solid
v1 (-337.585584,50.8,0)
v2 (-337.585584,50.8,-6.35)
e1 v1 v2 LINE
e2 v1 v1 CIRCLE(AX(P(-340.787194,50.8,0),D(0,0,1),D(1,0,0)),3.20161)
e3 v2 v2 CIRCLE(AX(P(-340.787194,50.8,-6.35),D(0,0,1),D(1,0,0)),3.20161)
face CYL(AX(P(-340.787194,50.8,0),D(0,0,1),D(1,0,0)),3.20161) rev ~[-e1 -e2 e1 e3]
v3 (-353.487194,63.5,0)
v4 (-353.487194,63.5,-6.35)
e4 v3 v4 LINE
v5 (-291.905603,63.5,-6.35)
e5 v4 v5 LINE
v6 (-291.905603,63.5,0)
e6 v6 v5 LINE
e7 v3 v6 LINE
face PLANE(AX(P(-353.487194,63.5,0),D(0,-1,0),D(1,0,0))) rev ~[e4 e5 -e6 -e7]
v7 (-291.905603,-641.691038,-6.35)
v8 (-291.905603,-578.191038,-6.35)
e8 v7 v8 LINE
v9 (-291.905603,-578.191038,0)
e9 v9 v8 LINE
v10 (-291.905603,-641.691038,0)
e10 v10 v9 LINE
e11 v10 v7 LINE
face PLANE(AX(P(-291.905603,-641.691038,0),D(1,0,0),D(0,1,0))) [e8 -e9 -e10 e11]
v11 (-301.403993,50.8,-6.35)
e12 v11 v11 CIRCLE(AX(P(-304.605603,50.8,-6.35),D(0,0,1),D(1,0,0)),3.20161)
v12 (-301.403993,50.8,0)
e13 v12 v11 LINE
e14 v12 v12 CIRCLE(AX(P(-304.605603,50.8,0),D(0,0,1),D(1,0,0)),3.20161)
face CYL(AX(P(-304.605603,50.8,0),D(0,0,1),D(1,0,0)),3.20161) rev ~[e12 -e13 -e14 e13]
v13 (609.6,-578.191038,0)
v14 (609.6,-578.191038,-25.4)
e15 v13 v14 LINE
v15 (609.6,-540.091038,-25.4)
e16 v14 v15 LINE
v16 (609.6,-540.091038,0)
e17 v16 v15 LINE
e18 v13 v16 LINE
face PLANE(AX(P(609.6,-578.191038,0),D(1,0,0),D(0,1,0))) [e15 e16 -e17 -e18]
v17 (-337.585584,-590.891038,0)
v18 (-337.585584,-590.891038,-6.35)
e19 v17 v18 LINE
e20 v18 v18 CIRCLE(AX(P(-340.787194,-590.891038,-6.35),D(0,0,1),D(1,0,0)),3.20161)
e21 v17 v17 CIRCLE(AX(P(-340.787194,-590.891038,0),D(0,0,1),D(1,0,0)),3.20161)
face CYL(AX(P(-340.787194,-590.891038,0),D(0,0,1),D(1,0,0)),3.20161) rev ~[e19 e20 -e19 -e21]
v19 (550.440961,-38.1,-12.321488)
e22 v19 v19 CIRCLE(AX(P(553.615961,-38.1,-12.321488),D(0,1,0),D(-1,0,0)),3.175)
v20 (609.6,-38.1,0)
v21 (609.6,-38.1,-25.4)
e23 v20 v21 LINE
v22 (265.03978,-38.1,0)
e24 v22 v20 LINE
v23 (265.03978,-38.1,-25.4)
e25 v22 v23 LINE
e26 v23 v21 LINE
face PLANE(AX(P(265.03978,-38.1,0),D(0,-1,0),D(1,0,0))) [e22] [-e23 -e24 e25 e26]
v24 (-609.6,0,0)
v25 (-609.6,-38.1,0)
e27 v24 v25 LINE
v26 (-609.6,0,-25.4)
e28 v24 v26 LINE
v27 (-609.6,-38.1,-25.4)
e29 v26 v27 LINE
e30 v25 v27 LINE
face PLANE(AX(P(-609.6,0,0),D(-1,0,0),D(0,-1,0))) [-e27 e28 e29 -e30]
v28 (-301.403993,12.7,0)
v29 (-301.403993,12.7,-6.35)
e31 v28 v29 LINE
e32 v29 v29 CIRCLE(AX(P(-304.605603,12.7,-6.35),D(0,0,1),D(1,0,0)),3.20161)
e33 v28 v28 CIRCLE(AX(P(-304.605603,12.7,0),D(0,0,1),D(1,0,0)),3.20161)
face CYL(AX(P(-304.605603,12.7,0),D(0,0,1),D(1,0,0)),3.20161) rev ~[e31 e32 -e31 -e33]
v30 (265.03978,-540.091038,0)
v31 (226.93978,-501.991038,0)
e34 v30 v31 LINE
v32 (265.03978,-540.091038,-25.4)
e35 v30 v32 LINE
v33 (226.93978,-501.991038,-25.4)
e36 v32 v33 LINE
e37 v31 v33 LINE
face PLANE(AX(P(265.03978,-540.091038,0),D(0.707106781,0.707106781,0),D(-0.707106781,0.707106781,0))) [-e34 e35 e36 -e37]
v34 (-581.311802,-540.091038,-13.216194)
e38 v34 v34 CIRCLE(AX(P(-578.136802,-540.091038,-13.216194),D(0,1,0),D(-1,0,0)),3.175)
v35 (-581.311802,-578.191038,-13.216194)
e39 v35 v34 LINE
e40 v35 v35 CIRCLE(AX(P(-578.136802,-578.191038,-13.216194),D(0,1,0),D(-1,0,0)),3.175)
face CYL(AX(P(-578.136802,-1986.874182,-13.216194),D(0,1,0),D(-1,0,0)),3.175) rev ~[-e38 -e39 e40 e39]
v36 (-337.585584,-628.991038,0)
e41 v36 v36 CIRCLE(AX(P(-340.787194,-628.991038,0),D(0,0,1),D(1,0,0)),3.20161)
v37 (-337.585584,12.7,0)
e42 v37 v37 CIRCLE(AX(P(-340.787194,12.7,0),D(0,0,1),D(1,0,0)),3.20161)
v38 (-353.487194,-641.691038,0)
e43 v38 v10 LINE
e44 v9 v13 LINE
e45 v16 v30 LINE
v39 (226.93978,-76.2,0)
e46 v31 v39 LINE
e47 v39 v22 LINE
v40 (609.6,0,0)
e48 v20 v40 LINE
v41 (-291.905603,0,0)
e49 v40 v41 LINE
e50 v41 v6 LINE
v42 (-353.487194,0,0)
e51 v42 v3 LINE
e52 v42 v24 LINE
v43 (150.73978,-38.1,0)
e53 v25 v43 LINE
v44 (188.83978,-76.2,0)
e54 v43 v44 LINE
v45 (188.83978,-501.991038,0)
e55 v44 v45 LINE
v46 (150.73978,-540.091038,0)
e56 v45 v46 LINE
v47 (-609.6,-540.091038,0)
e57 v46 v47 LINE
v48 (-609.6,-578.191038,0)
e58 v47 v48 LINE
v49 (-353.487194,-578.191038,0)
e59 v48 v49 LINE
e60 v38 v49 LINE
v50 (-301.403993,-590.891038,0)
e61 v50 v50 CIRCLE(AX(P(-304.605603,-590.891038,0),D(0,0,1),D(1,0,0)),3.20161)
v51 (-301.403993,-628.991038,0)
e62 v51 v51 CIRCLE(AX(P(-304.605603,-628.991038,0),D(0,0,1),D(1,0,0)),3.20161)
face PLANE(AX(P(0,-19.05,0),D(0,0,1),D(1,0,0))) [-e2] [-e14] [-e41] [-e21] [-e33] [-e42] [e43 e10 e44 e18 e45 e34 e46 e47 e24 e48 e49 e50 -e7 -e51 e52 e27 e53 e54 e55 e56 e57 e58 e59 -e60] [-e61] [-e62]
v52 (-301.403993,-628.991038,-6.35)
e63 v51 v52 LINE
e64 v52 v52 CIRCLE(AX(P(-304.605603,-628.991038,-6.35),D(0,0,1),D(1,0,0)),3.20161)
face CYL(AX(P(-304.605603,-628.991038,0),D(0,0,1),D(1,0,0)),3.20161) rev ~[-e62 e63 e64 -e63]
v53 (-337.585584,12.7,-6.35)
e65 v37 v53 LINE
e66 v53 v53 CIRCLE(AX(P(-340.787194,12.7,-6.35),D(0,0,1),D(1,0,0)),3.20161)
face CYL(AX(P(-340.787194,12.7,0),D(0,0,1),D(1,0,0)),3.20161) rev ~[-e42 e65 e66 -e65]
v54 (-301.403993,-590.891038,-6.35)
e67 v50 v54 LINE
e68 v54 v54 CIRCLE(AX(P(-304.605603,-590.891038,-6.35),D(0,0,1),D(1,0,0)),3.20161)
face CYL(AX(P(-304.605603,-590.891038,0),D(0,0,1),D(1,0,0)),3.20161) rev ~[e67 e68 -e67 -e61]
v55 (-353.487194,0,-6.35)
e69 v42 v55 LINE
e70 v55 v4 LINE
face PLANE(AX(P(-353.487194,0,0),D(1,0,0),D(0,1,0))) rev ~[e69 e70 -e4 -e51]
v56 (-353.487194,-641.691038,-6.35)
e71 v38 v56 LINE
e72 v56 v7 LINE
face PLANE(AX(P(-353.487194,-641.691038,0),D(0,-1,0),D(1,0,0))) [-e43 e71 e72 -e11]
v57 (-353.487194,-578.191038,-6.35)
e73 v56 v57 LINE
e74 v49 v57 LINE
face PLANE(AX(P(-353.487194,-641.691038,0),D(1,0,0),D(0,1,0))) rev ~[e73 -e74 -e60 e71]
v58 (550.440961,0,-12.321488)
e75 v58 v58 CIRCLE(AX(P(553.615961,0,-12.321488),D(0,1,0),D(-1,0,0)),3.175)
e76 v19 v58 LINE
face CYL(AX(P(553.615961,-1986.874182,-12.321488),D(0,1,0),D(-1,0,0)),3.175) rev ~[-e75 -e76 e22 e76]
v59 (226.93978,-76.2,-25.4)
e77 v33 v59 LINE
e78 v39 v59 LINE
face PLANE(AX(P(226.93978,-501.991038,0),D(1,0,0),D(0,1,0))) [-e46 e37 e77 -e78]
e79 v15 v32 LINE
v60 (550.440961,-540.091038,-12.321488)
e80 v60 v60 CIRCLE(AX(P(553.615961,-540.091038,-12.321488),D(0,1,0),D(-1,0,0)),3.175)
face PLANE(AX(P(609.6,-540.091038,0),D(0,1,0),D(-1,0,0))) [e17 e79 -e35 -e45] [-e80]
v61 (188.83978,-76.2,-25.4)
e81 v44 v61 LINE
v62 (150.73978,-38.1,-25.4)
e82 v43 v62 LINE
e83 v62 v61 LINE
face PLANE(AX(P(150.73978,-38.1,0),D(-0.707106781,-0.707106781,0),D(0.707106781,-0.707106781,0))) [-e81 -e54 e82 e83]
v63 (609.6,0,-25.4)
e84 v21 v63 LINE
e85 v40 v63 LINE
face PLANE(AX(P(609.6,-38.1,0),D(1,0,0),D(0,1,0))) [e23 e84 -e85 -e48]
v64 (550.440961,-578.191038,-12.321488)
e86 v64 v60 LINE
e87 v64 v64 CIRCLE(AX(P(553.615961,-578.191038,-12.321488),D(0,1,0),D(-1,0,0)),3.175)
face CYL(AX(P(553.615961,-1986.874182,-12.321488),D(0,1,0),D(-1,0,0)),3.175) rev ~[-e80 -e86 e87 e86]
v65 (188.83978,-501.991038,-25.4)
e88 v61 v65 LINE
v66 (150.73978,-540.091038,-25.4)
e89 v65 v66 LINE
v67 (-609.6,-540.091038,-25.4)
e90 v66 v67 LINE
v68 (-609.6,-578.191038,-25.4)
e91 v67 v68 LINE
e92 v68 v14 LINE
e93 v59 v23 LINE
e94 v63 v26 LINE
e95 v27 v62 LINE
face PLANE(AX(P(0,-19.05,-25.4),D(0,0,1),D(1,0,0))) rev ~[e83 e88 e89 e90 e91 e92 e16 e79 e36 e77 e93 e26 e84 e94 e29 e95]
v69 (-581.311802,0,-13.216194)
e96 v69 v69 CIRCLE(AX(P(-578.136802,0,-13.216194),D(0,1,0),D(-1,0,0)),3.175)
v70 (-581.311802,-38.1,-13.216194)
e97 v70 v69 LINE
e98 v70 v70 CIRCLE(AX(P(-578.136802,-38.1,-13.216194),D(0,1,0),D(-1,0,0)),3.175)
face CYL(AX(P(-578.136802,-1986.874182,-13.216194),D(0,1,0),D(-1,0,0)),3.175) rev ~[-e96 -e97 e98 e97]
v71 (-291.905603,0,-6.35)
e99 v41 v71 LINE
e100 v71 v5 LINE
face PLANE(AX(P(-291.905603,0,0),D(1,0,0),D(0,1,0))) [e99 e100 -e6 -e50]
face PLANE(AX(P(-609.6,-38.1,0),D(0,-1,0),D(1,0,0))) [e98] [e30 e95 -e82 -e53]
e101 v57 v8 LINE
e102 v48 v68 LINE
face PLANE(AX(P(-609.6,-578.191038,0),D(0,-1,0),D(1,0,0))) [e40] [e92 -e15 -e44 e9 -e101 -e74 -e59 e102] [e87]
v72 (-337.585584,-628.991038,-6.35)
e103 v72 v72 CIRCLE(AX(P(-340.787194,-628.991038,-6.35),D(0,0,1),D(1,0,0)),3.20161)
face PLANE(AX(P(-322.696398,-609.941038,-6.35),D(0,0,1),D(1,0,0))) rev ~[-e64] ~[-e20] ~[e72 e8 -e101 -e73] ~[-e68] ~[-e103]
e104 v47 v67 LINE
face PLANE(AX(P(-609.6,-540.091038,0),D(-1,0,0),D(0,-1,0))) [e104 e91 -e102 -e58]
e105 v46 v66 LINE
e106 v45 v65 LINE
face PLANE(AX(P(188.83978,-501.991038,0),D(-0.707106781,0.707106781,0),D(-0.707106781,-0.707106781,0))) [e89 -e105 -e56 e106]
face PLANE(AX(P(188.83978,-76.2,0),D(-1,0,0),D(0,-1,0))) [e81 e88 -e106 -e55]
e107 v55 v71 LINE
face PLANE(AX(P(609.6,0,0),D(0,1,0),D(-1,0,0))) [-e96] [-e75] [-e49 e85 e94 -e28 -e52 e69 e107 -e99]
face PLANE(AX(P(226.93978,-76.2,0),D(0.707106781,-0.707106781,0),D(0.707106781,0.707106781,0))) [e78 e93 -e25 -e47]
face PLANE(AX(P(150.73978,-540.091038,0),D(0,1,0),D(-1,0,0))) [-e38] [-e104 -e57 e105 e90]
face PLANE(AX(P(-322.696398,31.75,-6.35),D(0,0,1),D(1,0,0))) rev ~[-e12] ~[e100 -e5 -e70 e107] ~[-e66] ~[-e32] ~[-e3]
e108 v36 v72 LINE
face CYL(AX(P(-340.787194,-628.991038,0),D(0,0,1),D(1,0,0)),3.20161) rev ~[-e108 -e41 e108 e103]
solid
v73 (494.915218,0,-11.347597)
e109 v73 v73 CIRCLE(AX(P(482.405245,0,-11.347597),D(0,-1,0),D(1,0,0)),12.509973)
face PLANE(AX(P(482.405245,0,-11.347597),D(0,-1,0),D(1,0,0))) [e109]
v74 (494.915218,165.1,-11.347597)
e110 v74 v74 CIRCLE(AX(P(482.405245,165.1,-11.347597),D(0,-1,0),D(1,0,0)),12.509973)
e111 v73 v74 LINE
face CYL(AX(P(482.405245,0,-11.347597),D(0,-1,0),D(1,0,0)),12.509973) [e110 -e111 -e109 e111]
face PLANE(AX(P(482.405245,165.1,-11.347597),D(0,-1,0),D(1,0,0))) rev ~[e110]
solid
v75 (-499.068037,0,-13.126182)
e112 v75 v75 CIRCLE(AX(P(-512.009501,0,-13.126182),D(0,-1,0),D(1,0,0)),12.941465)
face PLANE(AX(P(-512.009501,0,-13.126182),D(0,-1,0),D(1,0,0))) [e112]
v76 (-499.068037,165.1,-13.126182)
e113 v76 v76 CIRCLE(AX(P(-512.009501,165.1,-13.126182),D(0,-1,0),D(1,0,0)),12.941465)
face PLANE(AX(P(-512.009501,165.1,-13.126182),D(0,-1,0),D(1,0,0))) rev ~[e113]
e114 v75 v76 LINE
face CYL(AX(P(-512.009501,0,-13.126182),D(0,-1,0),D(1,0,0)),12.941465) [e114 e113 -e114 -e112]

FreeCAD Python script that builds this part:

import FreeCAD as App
import Part
import Sketcher
Q = App.Units.Quantity


def add_polygon(sketch, points):
    """Adds a closed chain of lines whose ends are joined by coincident constraints."""
    first, n = sketch.GeometryCount, len(points)
    for a, b in zip(points, points[1:] + points[:1]):
        sketch.addGeometry(Part.LineSegment(App.Vector(*a, 0), App.Vector(*b, 0)), False)
    for i in range(n):
        sketch.addConstraint(Sketcher.Constraint("Coincident", first + i, 2, first + (i + 1) % n, 1))

doc = App.newDocument("Part")
params = doc.addObject("Spreadsheet::Sheet", "Params")
for row, (alias, value) in enumerate([
    ("sketch1_width", "48 in"),
    ("sketch1_height", "1.5 in"),
    ("pad1_length", "1 in"),
    ("sketch2_height", "2.5 in"),
    ("pad2_length", "0.25 in"),
    ("sketch3_diameter", "0.25 in"),
    ("hole_diameter", "0.25 in"),
    ("sketch4_diameter", "0.25 in"),
    ("hole2_diameter", "0.25 in"),
    ("pad3_length", "6.5 in"),
    ("pad4_length", "6.5 in"),
], start=1):
    params.set(f"A{row}", alias)
    params.set(f"B{row}", "=" + value)
    params.setAlias(f"B{row}", alias)

body = doc.addObject("PartDesign::Body", "Body")

# Sketch on XY plane
sketch1 = doc.addObject("Sketcher::SketchObject", "Sketch")
body.addObject(sketch1)
sketch1.AttachmentSupport = (doc.XY_Plane, [""])
sketch1.MapMode = "FlatFace"
add_polygon(sketch1, [(-610, 0), (-610, -38), (151, -38), (189, -76), (189, -502), (151, -540), (-610, -540), (-610, -578), (610, -578), (610, -540), (265, -540), (227, -502), (227, -76), (265, -38), (610, -38), (610, 0)])  # lines 0-15
sketch1.addConstraint([
    Sketcher.Constraint("Vertical", 0),
    Sketcher.Constraint("Horizontal", 1),
    Sketcher.Constraint("Vertical", 3),
    Sketcher.Constraint("Horizontal", 5),
    Sketcher.Constraint("Vertical", 6),
    Sketcher.Constraint("Horizontal", 7),
    Sketcher.Constraint("Vertical", 8),
    Sketcher.Constraint("Horizontal", 9),
    Sketcher.Constraint("Vertical", 11),
    Sketcher.Constraint("Horizontal", 13),
    Sketcher.Constraint("Vertical", 14),
    Sketcher.Constraint("Horizontal", 15),
    Sketcher.Constraint("Symmetric", 14, 2, 15, 2, -1, 1),
    Sketcher.Constraint("Symmetric", 5, 2, 8, 2, -2),
    Sketcher.Constraint("Perpendicular", 2, 4),
    Sketcher.Constraint("Perpendicular", 4, 10),
    Sketcher.Constraint("Perpendicular", 10, 12),
    Sketcher.Constraint("Horizontal", 3, 2, 10, 2),
    Sketcher.Constraint("Horizontal", 2, 2, 11, 2),
    Sketcher.Constraint("Horizontal", 1, 2, 12, 2),
    Sketcher.Constraint("Vertical", 1, 2, 4, 2),
    Sketcher.Constraint("Vertical", 0, 2, 5, 2),
    Sketcher.Constraint("Vertical", 9, 2, 12, 2),
    Sketcher.Constraint("Equal", 0, 6),
    Sketcher.Constraint("DistanceX", 7, 1, 7, 2, Q("48 in")),
    Sketcher.Constraint("DistanceY", 0, 2, 0, 1, Q("1.5 in")),
    Sketcher.Constraint("DistanceY", 2, 2, -1, 1, Q("3 in")),
    Sketcher.Constraint("DistanceX", 3, 2, 9, 2, Q("3 in")),
    Sketcher.Constraint("DistanceX", 1, 1, 1, 2, Q("760.33978 mm")),
    Sketcher.Constraint("DistanceY", 3, 2, 3, 1, Q("425.791038 mm")),
])
sketch1.setExpression("Constraints[40]", "Params.sketch1_width")
sketch1.setExpression("Constraints[41]", "Params.sketch1_height")
pad1 = doc.addObject("PartDesign::Pad", "Pad")
body.addObject(pad1)
pad1.Profile = sketch1
pad1.setExpression("Length", "Params.pad1_length")
pad1.Reversed = True

# Sketch on XY plane
sketch2 = doc.addObject("Sketcher::SketchObject", "Sketch001")
body.addObject(sketch2)
sketch2.AttachmentSupport = (doc.XY_Plane, [""])
sketch2.MapMode = "FlatFace"
add_polygon(sketch2, [(-353.5, -578.2), (-353.5, -641.7), (-291.9, -641.7), (-291.9, -578.2)])  # lines 0-3
sketch2.addGeometry(Part.Circle(App.Vector(-340.8, -629, 0), App.Vector(0, 0, 1), 3.2), False)  # 4
sketch2.addGeometry(Part.Circle(App.Vector(-304.6, -629, 0), App.Vector(0, 0, 1), 3.2), False)  # 5
sketch2.addGeometry(Part.Circle(App.Vector(-340.8, -590.9, 0), App.Vector(0, 0, 1), 3.2), False)  # 6
sketch2.addGeometry(Part.Circle(App.Vector(-304.6, -590.9, 0), App.Vector(0, 0, 1), 3.2), False)  # 7
add_polygon(sketch2, [(-353.5, 63.5), (-353.5, 0), (-291.9, 0), (-291.9, 63.5)])  # lines 8-11
sketch2.addGeometry(Part.Circle(App.Vector(-340.8, 12.7, 0), App.Vector(0, 0, 1), 3.2), False)  # 12
sketch2.addGeometry(Part.Circle(App.Vector(-304.6, 12.7, 0), App.Vector(0, 0, 1), 3.2), False)  # 13
sketch2.addGeometry(Part.Circle(App.Vector(-340.8, 50.8, 0), App.Vector(0, 0, 1), 3.2), False)  # 14
sketch2.addGeometry(Part.Circle(App.Vector(-304.6, 50.8, 0), App.Vector(0, 0, 1), 3.2), False)  # 15
sketch2.addConstraint([
    Sketcher.Constraint("Vertical", 0),
    Sketcher.Constraint("Horizontal", 1),
    Sketcher.Constraint("Vertical", 2),
    Sketcher.Constraint("Horizontal", 3),
    Sketcher.Constraint("Vertical", 8),
    Sketcher.Constraint("Horizontal", 9),
    Sketcher.Constraint("Vertical", 10),
    Sketcher.Constraint("Horizontal", 11),
    Sketcher.Constraint("Equal", 4, 5),
    Sketcher.Constraint("Equal", 5, 6),
    Sketcher.Constraint("Equal", 6, 7),
    Sketcher.Constraint("Equal", 7, 12),
    Sketcher.Constraint("Equal", 12, 13),
    Sketcher.Constraint("Equal", 13, 14),
    Sketcher.Constraint("Equal", 14, 15),
    Sketcher.Constraint("PointOnObject", 8, 2, -1),
    Sketcher.Constraint("Horizontal", 4, 3, 5, 3),
    Sketcher.Constraint("Horizontal", 6, 3, 7, 3),
    Sketcher.Constraint("Horizontal", 12, 3, 13, 3),
    Sketcher.Constraint("Horizontal", 14, 3, 15, 3),
    Sketcher.Constraint("Vertical", 4, 3, 6, 3),
    Sketcher.Constraint("Vertical", 5, 3, 7, 3),
    Sketcher.Constraint("Vertical", 6, 3, 12, 3),
    Sketcher.Constraint("Vertical", 7, 3, 13, 3),
    Sketcher.Constraint("Vertical", 12, 3, 14, 3),
    Sketcher.Constraint("Vertical", 13, 3, 15, 3),
    Sketcher.Constraint("Vertical", 3, 2, 8, 2),
    Sketcher.Constraint("Vertical", 2, 2, 9, 2),
    Sketcher.Constraint("Equal", 2, 8),
    Sketcher.Constraint("DistanceY", 0, 2, 0, 1, Q("2.5 in")),
    Sketcher.Constraint("DistanceY", -1, 1, 14, 3, Q("2 in")),
    Sketcher.Constraint("DistanceY", 0, 2, 6, 3, Q("2 in")),
    Sketcher.Constraint("DistanceY", 5, 3, 2, 2, Q("2 in")),
    Sketcher.Constraint("DistanceY", 13, 3, 10, 2, Q("2 in")),
    Sketcher.Constraint("DistanceX", 0, 2, 4, 3, Q("0.5 in")),
    Sketcher.Constraint("DistanceX", 5, 3, 1, 2, Q("0.5 in")),
    Sketcher.Constraint("Diameter", 4, Q("6.40322 mm")),
    Sketcher.Constraint("DistanceX", 1, 1, 1, 2, Q("61.58159 mm")),
    Sketcher.Constraint("DistanceX", 4, 3, -1, 1, Q("340.787194 mm")),
    Sketcher.Constraint("DistanceY", 4, 3, -1, 1, Q("628.991038 mm")),
])
sketch2.setExpression("Constraints[37]", "Params.sketch2_height")
pad2 = doc.addObject("PartDesign::Pad", "Pad001")
body.addObject(pad2)
pad2.Profile = sketch2
pad2.setExpression("Length", "Params.pad2_length")
pad2.Reversed = True

# Sketch on XZ plane
sketch3 = doc.addObject("Sketcher::SketchObject", "Sketch002")
body.addObject(sketch3)
sketch3.AttachmentSupport = (doc.XZ_Plane, [""])
sketch3.MapMode = "FlatFace"
sketch3.AttachmentOffset = App.Placement(App.Vector(0, 0, 578.191038), App.Rotation())
sketch3.addGeometry(Part.Circle(App.Vector(-578.1, -13.2, 0), App.Vector(0, 0, 1), 3.2), False)
sketch3.addConstraint([
    Sketcher.Constraint("Diameter", 0, Q("0.25 in")),
    Sketcher.Constraint("DistanceX", 0, 3, -1, 1, Q("578.136802 mm")),
    Sketcher.Constraint("DistanceY", 0, 3, -1, 1, Q("13.216194 mm")),
])
sketch3.setExpression("Constraints[0]", "Params.sketch3_diameter")
doc.recompute()
hole = doc.addObject("PartDesign::Hole", "Hole")
body.addObject(hole)
hole.Profile = sketch3
hole.ThreadType = "None"
hole.setExpression("Diameter", "Params.hole_diameter")
hole.DepthType = "ThroughAll"

# Sketch on XZ plane
sketch4 = doc.addObject("Sketcher::SketchObject", "Sketch003")
body.addObject(sketch4)
sketch4.AttachmentSupport = (doc.XZ_Plane, [""])
sketch4.MapMode = "FlatFace"
sketch4.AttachmentOffset = App.Placement(App.Vector(0, 0, 578.191038), App.Rotation())
sketch4.addGeometry(Part.Circle(App.Vector(553.6, -12.3, 0), App.Vector(0, 0, 1), 3.2), False)
sketch4.addConstraint([
    Sketcher.Constraint("Diameter", 0, Q("0.25 in")),
    Sketcher.Constraint("DistanceX", -1, 1, 0, 3, Q("553.615961 mm")),
    Sketcher.Constraint("DistanceY", 0, 3, -1, 1, Q("12.321488 mm")),
])
sketch4.setExpression("Constraints[0]", "Params.sketch4_diameter")
doc.recompute()
hole2 = doc.addObject("PartDesign::Hole", "Hole001")
body.addObject(hole2)
hole2.Profile = sketch4
hole2.ThreadType = "None"
hole2.setExpression("Diameter", "Params.hole2_diameter")
hole2.DepthType = "ThroughAll"
body2 = doc.addObject("PartDesign::Body", "Body001")

# Sketch on XZ plane
sketch5 = doc.addObject("Sketcher::SketchObject", "Sketch004")
body2.addObject(sketch5)
sketch5.AttachmentSupport = (doc.getObject("XZ_Plane001"), [""])
sketch5.MapMode = "FlatFace"
sketch5.addGeometry(Part.Circle(App.Vector(482, -11, 0), App.Vector(0, 0, 1), 13), False)
sketch5.addConstraint([
    Sketcher.Constraint("Diameter", 0, Q("25.019946 mm")),
    Sketcher.Constraint("DistanceX", -1, 1, 0, 3, Q("482.405245 mm")),
    Sketcher.Constraint("DistanceY", 0, 3, -1, 1, Q("11.347597 mm")),
])
pad3 = doc.addObject("PartDesign::Pad", "Pad002")
body2.addObject(pad3)
pad3.Profile = sketch5
pad3.setExpression("Length", "Params.pad3_length")
pad3.Reversed = True
body3 = doc.addObject("PartDesign::Body", "Body002")

# Sketch on XZ plane
sketch6 = doc.addObject("Sketcher::SketchObject", "Sketch005")
body3.addObject(sketch6)
sketch6.AttachmentSupport = (doc.getObject("XZ_Plane002"), [""])
sketch6.MapMode = "FlatFace"
sketch6.addGeometry(Part.Circle(App.Vector(-512, -13, 0), App.Vector(0, 0, 1), 13), False)
sketch6.addConstraint([
    Sketcher.Constraint("Diameter", 0, Q("25.882929 mm")),
    Sketcher.Constraint("DistanceX", 0, 3, -1, 1, Q("512.009501 mm")),
    Sketcher.Constraint("DistanceY", 0, 3, -1, 1, Q("13.126182 mm")),
])
pad4 = doc.addObject("PartDesign::Pad", "Pad003")
body3.addObject(pad4)
pad4.Profile = sketch6
pad4.setExpression("Length", "Params.pad4_length")
pad4.Reversed = True

doc.recompute()
